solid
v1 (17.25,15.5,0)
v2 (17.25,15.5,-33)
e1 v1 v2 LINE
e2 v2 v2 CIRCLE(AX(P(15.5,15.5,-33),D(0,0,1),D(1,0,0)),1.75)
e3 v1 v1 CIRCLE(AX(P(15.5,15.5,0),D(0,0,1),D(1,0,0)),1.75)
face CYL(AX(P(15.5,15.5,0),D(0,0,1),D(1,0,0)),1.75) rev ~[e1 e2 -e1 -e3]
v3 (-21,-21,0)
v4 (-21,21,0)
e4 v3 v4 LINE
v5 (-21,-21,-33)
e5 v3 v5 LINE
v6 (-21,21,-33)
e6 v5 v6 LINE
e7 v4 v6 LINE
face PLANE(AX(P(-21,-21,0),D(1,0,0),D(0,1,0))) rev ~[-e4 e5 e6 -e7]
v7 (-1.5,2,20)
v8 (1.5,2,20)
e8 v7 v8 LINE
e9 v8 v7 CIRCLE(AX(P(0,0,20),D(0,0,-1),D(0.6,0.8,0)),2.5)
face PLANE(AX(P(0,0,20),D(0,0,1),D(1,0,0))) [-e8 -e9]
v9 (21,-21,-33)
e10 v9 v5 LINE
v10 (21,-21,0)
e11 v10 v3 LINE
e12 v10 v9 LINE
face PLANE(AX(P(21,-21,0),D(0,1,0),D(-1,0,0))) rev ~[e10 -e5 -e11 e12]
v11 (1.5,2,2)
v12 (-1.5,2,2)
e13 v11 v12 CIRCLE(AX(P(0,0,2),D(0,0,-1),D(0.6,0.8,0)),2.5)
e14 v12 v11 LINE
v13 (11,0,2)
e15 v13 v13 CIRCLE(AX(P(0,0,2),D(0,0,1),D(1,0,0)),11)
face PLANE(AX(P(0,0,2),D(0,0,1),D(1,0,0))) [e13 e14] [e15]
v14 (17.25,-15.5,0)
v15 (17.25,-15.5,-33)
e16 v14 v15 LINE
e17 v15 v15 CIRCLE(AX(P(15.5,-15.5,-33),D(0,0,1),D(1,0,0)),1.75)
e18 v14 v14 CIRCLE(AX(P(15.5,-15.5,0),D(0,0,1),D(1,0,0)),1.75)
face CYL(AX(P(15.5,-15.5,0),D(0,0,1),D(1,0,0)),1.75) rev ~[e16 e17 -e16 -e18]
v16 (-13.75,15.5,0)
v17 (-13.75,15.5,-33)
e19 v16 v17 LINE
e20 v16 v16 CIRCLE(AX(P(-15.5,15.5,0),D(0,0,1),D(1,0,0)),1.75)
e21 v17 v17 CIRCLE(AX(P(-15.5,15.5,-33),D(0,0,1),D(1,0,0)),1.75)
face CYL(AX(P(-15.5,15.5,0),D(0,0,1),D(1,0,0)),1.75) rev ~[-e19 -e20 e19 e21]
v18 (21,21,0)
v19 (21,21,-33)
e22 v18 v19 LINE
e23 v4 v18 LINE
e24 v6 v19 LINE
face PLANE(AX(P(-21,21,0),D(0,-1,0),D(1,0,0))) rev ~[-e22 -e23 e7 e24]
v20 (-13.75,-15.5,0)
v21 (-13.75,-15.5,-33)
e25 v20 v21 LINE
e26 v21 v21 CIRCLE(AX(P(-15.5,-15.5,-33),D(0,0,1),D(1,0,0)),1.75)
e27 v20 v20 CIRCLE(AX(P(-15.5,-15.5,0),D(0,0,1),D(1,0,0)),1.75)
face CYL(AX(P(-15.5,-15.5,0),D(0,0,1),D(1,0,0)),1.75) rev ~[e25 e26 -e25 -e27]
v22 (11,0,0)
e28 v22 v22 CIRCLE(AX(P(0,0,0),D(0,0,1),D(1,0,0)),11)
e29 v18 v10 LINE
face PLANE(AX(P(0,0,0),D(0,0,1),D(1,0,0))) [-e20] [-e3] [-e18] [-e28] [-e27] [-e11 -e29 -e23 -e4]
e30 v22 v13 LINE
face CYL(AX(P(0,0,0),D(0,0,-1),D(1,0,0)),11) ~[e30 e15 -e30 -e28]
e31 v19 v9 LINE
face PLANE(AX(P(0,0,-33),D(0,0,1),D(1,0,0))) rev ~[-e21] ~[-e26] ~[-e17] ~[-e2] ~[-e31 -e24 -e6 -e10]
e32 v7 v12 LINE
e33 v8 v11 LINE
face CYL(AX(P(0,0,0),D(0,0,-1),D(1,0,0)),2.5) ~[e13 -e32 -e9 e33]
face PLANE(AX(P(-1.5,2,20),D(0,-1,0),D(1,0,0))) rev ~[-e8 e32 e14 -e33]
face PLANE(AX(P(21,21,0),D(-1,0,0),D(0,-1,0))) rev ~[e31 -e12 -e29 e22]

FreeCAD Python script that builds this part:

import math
import FreeCAD as App
import Part
import Sketcher

V = App.Vector
Q = App.Units.Quantity


def add_polygon(sketch, points):
    """Adds a closed chain of lines whose ends are joined by coincident constraints."""
    first, n = sketch.GeometryCount, len(points)
    for a, b in zip(points, points[1:] + points[:1]):
        sketch.addGeometry(Part.LineSegment(App.Vector(*a, 0), App.Vector(*b, 0)), False)
    for i in range(n):
        sketch.addConstraint(Sketcher.Constraint("Coincident", first + i, 2, first + (i + 1) % n, 1))

doc = App.newDocument("Part")
params = doc.addObject("Spreadsheet::Sheet", "Params")
for row, (alias, value) in enumerate([
    ("sketch1_diameter", "3.5 mm"),
    ("sketch1_width", "42 mm"),
    ("pad1_length", "33 mm"),
    ("sketch2_diameter", "5 mm"),
    ("pad2_length", "20 mm"),
    ("sketch3_diameter", "22 mm"),
    ("pad3_length", "2 mm"),
    ("sketch4_radius", "2.5 mm"),
    ("sketch4_width", "3 mm"),
    ("pocket1_length", "18 mm"),
], start=1):
    params.set(f"A{row}", alias)
    params.set(f"B{row}", "=" + value)
    params.setAlias(f"B{row}", alias)

body = doc.addObject("PartDesign::Body", "Body")

# Sketch on XY plane
sketch1 = body.newObject("Sketcher::SketchObject", "Sketch")
sketch1.AttachmentSupport = (doc.getObject("XY_Plane"), [""])
sketch1.MapMode = "FlatFace"
add_polygon(sketch1, [(21, 21), (-21, 21), (-21, -21), (21, -21)])  # lines 0-3
sketch1.addGeometry(Part.Circle(V(-15.5, -15.5, 0), V(0, 0, 1), 1.8), False)  # 4
sketch1.addGeometry(Part.Circle(V(15.5, -15.5, 0), V(0, 0, 1), 1.8), False)  # 5
sketch1.addGeometry(Part.Circle(V(-15.5, 15.5, 0), V(0, 0, 1), 1.8), False)  # 6
sketch1.addGeometry(Part.Circle(V(15.5, 15.5, 0), V(0, 0, 1), 1.8), False)  # 7
sketch1.addConstraint([
    Sketcher.Constraint("Horizontal", 0),
    Sketcher.Constraint("Vertical", 1),
    Sketcher.Constraint("Horizontal", 2),
    Sketcher.Constraint("Vertical", 3),
    Sketcher.Constraint("Equal", 4, 5),
    Sketcher.Constraint("Equal", 5, 6),
    Sketcher.Constraint("Equal", 6, 7),
    Sketcher.Constraint("Symmetric", 5, 3, 6, 3, -1, 1),
    Sketcher.Constraint("Symmetric", 4, 3, 7, 3, -1, 1),
    Sketcher.Constraint("Symmetric", 0, 2, 2, 2, -1, 1),
    Sketcher.Constraint("Symmetric", 4, 3, 5, 3, -2),
    Sketcher.Constraint("Equal", 2, 1),
    Sketcher.Constraint("Diameter", 4, Q("3.5 mm")),
    Sketcher.Constraint("DistanceX", 0, 2, 0, 1, Q("42 mm")),
    Sketcher.Constraint("DistanceX", 4, 3, 5, 3, Q("31 mm")),
    Sketcher.Constraint("DistanceY", 4, 3, 6, 3, Q("31 mm")),
])
sketch1.setExpression("Constraints[16]", "Params.sketch1_diameter")
sketch1.setExpression("Constraints[17]", "Params.sketch1_width")
pad1 = body.newObject("PartDesign::Pad", "Pad")
pad1.Profile = sketch1
pad1.setExpression("Length", "Params.pad1_length")
pad1.Reversed = True

# Sketch on XY plane
sketch2 = body.newObject("Sketcher::SketchObject", "Sketch001")
sketch2.AttachmentSupport = (doc.getObject("XY_Plane"), [""])
sketch2.MapMode = "FlatFace"
sketch2.addGeometry(Part.Circle(V(0, 0, 0), V(0, 0, 1), 2.5), False)
sketch2.addConstraint([
    Sketcher.Constraint("Coincident", 0, 3, -1, 1),
    Sketcher.Constraint("Diameter", 0, Q("5 mm")),
])
sketch2.setExpression("Constraints[1]", "Params.sketch2_diameter")
pad2 = body.newObject("PartDesign::Pad", "Pad001")
pad2.Profile = sketch2
pad2.setExpression("Length", "Params.pad2_length")

# Sketch on XY plane
sketch3 = body.newObject("Sketcher::SketchObject", "Sketch002")
sketch3.AttachmentSupport = (doc.getObject("XY_Plane"), [""])
sketch3.MapMode = "FlatFace"
sketch3.addGeometry(Part.Circle(V(0, 0, 0), V(0, 0, 1), 11), False)
sketch3.addConstraint([
    Sketcher.Constraint("Coincident", 0, 3, -1, 1),
    Sketcher.Constraint("Diameter", 0, Q("22 mm")),
])
sketch3.setExpression("Constraints[1]", "Params.sketch3_diameter")
pad3 = body.newObject("PartDesign::Pad", "Pad002")
pad3.Profile = sketch3
pad3.setExpression("Length", "Params.pad3_length")

# Sketch on XY plane
sketch4 = body.newObject("Sketcher::SketchObject", "Sketch003")
sketch4.AttachmentSupport = (doc.getObject("XY_Plane"), [""])
sketch4.MapMode = "FlatFace"
sketch4.AttachmentOffset = App.Placement(V(0, 0, 20), App.Rotation())
sketch4.addGeometry([
    Part.LineSegment(V(-1.5, 2, 0), V(1.5, 2, 0)),
    Part.ArcOfCircle(Part.Circle(V(0, 0, 0), V(0, 0, 1), 2.5), math.radians(53), math.radians(127)),
], False)
sketch4.addConstraint([
    Sketcher.Constraint("Coincident", 0, 1, 1, 2),
    Sketcher.Constraint("Coincident", 1, 1, 0, 2),
    Sketcher.Constraint("Horizontal", 0),
    Sketcher.Constraint("Coincident", 1, 3, -1, 1),
    Sketcher.Constraint("Radius", 1, Q("2.5 mm")),
    Sketcher.Constraint("DistanceX", 0, 1, 0, 2, Q("3 mm")),
])
sketch4.setExpression("Constraints[4]", "Params.sketch4_radius")
sketch4.setExpression("Constraints[5]", "Params.sketch4_width")
pocket1 = body.newObject("PartDesign::Pocket", "Pocket")
pocket1.Profile = sketch4
pocket1.setExpression("Length", "Params.pocket1_length")

doc.recompute()
